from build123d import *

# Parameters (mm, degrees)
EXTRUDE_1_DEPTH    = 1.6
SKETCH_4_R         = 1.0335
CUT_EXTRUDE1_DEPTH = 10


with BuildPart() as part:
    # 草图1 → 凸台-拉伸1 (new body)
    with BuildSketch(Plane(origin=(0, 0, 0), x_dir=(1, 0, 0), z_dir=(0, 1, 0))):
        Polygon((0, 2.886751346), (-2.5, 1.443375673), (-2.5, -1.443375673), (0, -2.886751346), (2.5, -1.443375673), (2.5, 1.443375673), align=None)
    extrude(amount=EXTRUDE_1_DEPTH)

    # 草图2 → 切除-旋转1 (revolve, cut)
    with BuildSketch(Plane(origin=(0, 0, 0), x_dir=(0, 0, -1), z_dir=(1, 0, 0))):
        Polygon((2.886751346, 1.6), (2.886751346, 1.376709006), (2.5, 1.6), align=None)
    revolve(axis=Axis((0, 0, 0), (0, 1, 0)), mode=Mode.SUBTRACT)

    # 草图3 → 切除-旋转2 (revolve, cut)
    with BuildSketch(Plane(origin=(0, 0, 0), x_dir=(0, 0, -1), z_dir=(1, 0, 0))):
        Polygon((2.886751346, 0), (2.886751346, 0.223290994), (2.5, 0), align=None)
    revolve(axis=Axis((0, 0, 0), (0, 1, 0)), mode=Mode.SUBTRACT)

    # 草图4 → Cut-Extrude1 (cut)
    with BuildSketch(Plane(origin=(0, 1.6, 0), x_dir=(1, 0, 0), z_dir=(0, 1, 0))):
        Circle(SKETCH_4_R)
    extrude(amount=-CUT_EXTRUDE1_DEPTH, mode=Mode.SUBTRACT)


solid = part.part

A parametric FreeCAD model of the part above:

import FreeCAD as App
import Part
import Sketcher

V = App.Vector
Q = App.Units.Quantity

doc = App.newDocument("Part")
body = doc.addObject("PartDesign::Body", "Body")

# Sketch on XZ plane
sketch1 = body.newObject("Sketcher::SketchObject", "Sketch")
sketch1.AttachmentSupport = (doc.getObject("XZ_Plane"), [""])
sketch1.MapMode = "FlatFace"
sketch1.addGeometry(Part.LineSegment(V(0, -2.9, 0), V(-2.5, -1.4, 0)), False)
sketch1.addGeometry(Part.LineSegment(V(-2.5, -1.4, 0), V(-2.5, 1.4, 0)), False)
sketch1.addGeometry(Part.LineSegment(V(-2.5, 1.4, 0), V(0, 2.9, 0)), False)
sketch1.addGeometry(Part.LineSegment(V(0, 2.9, 0), V(2.5, 1.4, 0)), False)
sketch1.addGeometry(Part.LineSegment(V(2.5, 1.4, 0), V(2.5, -1.4, 0)), False)
sketch1.addGeometry(Part.LineSegment(V(2.5, -1.4, 0), V(0, -2.9, 0)), False)
sketch1.addConstraint(Sketcher.Constraint("Coincident", 0, 2, 1, 1))
sketch1.addConstraint(Sketcher.Constraint("Coincident", 1, 2, 2, 1))
sketch1.addConstraint(Sketcher.Constraint("Coincident", 2, 2, 3, 1))
sketch1.addConstraint(Sketcher.Constraint("Coincident", 3, 2, 4, 1))
sketch1.addConstraint(Sketcher.Constraint("Coincident", 4, 2, 5, 1))
sketch1.addConstraint(Sketcher.Constraint("Coincident", 5, 2, 0, 1))
sketch1.addConstraint(Sketcher.Constraint("Vertical", 1))
sketch1.addConstraint(Sketcher.Constraint("Vertical", 4))
sketch1.addConstraint(Sketcher.Constraint("Symmetric", 0, 2, 3, 2, -1, 1))
sketch1.addConstraint(Sketcher.Constraint("Symmetric", 2, 2, 5, 2, -1, 1))
sketch1.addConstraint(Sketcher.Constraint("PointOnObject", 2, 2, -2))
sketch1.addConstraint(Sketcher.Constraint("Parallel", 2, 5))
sketch1.addConstraint(Sketcher.Constraint("Horizontal", 1, 2, 3, 2))
sketch1.addConstraint(Sketcher.Constraint("Angle", 0, Q("150 deg")))
sketch1.addConstraint(Sketcher.Constraint("DistanceX", 1, 2, 3, 2, 5.0))
sketch1.addConstraint(Sketcher.Constraint("DistanceY", 1, 1, 1, 2, 2.886751))
pad1 = body.newObject("PartDesign::Pad", "Pad")
pad1.Profile = sketch1
pad1.Length = 1.6
pad1.Reversed = True

# Sketch on YZ plane
sketch2 = body.newObject("Sketcher::SketchObject", "Sketch001")
sketch2.AttachmentSupport = (doc.getObject("YZ_Plane"), [""])
sketch2.MapMode = "FlatFace"
sketch2.addGeometry(Part.LineSegment(V(1.38, -2.89, 0), V(1.6, -2.89, 0)), False)
sketch2.addGeometry(Part.LineSegment(V(1.6, -2.89, 0), V(1.6, -2.5, 0)), False)
sketch2.addGeometry(Part.LineSegment(V(1.6, -2.5, 0), V(1.38, -2.89, 0)), False)
sketch2.addConstraint(Sketcher.Constraint("Coincident", 0, 2, 1, 1))
sketch2.addConstraint(Sketcher.Constraint("Coincident", 1, 2, 2, 1))
sketch2.addConstraint(Sketcher.Constraint("Coincident", 2, 2, 0, 1))
sketch2.addConstraint(Sketcher.Constraint("Horizontal", 0))
sketch2.addConstraint(Sketcher.Constraint("Vertical", 1))
sketch2.addConstraint(Sketcher.Constraint("Angle", 2, Q("-120 deg")))
sketch2.addConstraint(Sketcher.Constraint("DistanceX", -1, 1, 0, 2, 1.6))
sketch2.addConstraint(Sketcher.Constraint("DistanceY", 1, 2, -1, 1, 2.5))
sketch2.addConstraint(Sketcher.Constraint("DistanceX", 0, 1, 0, 2, 0.223291))
groove = body.newObject("PartDesign::Groove", "Groove")
groove.Profile = sketch2
groove.ReferenceAxis = (sketch2, ["H_Axis"])
groove.Angle = 360

# Sketch on YZ plane
sketch3 = body.newObject("Sketcher::SketchObject", "Sketch002")
sketch3.AttachmentSupport = (doc.getObject("YZ_Plane"), [""])
sketch3.MapMode = "FlatFace"
sketch3.addGeometry(Part.LineSegment(V(0, -2.89, 0), V(0.22, -2.89, 0)), False)
sketch3.addGeometry(Part.LineSegment(V(0.22, -2.89, 0), V(0, -2.5, 0)), False)
sketch3.addGeometry(Part.LineSegment(V(0, -2.5, 0), V(0, -2.89, 0)), False)
sketch3.addConstraint(Sketcher.Constraint("Coincident", 0, 2, 1, 1))
sketch3.addConstraint(Sketcher.Constraint("Coincident", 1, 2, 2, 1))
sketch3.addConstraint(Sketcher.Constraint("Coincident", 2, 2, 0, 1))
sketch3.addConstraint(Sketcher.Constraint("Horizontal", 0))
sketch3.addConstraint(Sketcher.Constraint("Vertical", 2))
sketch3.addConstraint(Sketcher.Constraint("PointOnObject", 1, 2, -2))
sketch3.addConstraint(Sketcher.Constraint("Angle", 1, Q("120 deg")))
sketch3.addConstraint(Sketcher.Constraint("DistanceY", 1, 2, -1, 1, 2.5))
sketch3.addConstraint(Sketcher.Constraint("DistanceX", 0, 1, 0, 2, 0.223291))
groove2 = body.newObject("PartDesign::Groove", "Groove001")
groove2.Profile = sketch3
groove2.ReferenceAxis = (sketch3, ["H_Axis"])
groove2.Angle = 360

# Sketch on XZ plane
sketch4 = body.newObject("Sketcher::SketchObject", "Sketch003")
sketch4.AttachmentSupport = (doc.getObject("XZ_Plane"), [""])
sketch4.MapMode = "FlatFace"
sketch4.AttachmentOffset = App.Placement(V(0, 0, -1.6), App.Rotation())
sketch4.addGeometry(Part.Circle(V(0, 0, 0), V(0, 0, 1), 1), False)
sketch4.addConstraint(Sketcher.Constraint("Coincident", 0, 3, -1, 1))
sketch4.addConstraint(Sketcher.Constraint("Diameter", 0, 2.067))
pocket1 = body.newObject("PartDesign::Pocket", "Pocket")
pocket1.Profile = sketch4
pocket1.Length = 10
pocket1.Reversed = True

doc.recompute()
